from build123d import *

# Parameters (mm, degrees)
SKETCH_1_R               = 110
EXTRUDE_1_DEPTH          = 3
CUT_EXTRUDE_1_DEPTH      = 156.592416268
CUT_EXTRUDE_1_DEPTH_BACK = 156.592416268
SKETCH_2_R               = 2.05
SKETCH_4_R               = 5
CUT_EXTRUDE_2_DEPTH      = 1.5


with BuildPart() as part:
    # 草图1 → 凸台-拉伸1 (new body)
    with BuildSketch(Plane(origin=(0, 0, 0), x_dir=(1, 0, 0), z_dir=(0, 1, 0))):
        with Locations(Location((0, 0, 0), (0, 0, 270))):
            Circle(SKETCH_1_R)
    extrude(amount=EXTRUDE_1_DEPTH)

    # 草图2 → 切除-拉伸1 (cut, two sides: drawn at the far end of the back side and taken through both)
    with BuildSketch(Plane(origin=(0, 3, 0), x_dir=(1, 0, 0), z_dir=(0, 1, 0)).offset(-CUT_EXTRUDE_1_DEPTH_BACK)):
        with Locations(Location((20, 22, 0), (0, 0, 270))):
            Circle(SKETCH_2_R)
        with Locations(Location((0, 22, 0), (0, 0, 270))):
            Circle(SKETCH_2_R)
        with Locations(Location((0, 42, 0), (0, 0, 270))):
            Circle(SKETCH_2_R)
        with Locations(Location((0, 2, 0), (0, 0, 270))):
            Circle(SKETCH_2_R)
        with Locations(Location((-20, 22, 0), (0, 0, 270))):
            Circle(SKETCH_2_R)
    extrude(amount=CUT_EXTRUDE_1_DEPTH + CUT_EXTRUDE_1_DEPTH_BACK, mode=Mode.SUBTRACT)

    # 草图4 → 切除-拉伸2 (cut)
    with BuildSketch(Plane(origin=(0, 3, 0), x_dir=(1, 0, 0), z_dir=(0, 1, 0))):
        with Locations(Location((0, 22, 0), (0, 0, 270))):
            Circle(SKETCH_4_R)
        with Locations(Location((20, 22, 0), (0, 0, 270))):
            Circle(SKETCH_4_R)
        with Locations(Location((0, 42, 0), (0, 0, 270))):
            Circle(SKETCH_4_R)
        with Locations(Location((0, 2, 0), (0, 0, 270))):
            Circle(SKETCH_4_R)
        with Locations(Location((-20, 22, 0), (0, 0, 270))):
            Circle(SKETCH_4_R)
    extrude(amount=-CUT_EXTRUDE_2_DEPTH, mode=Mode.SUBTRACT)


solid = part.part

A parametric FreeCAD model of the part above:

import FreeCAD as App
import Part
import Sketcher

V = App.Vector
Q = App.Units.Quantity

doc = App.newDocument("Part")
body = doc.addObject("PartDesign::Body", "Body")

# Sketch on XZ plane
sketch1 = body.newObject("Sketcher::SketchObject", "Sketch")
sketch1.AttachmentSupport = (doc.getObject("XZ_Plane"), [""])
sketch1.MapMode = "FlatFace"
sketch1.addGeometry(Part.Circle(V(0, 0, 0), V(0, 0, 1), 110), False)
sketch1.addConstraint([
    Sketcher.Constraint("Coincident", 0, 3, -1, 1),
    Sketcher.Constraint("Diameter", 0, Q("220 mm")),
])
pad1 = body.newObject("PartDesign::Pad", "Pad")
pad1.Profile = sketch1
pad1.Length = 3
pad1.Reversed = True

# Sketch on XZ plane
sketch2 = body.newObject("Sketcher::SketchObject", "Sketch001")
sketch2.AttachmentSupport = (doc.getObject("XZ_Plane"), [""])
sketch2.MapMode = "FlatFace"
sketch2.AttachmentOffset = App.Placement(V(0, 0, -3), App.Rotation())
sketch2.addGeometry([
    Part.Circle(V(20, -22, 0), V(0, 0, 1), 2),  # 0
    Part.Circle(V(0, -22, 0), V(0, 0, 1), 2),  # 1
    Part.Circle(V(0, -42, 0), V(0, 0, 1), 2),  # 2
    Part.Circle(V(0, -2, 0), V(0, 0, 1), 2),  # 3
    Part.Circle(V(-20, -22, 0), V(0, 0, 1), 2),  # 4
], False)
sketch2.addConstraint([
    Sketcher.Constraint("Equal", 0, 1),
    Sketcher.Constraint("Equal", 1, 2),
    Sketcher.Constraint("Equal", 2, 3),
    Sketcher.Constraint("Equal", 3, 4),
    Sketcher.Constraint("Symmetric", 0, 3, 4, 3, -2),
    Sketcher.Constraint("PointOnObject", 1, 3, -2),
    Sketcher.Constraint("PointOnObject", 2, 3, -2),
    Sketcher.Constraint("PointOnObject", 3, 3, -2),
    Sketcher.Constraint("Horizontal", 0, 3, 1, 3),
    Sketcher.Constraint("Diameter", 0, Q("4.1 mm")),
    Sketcher.Constraint("DistanceX", -1, 1, 0, 3, Q("20 mm")),
    Sketcher.Constraint("DistanceY", 0, 3, -1, 1, Q("22 mm")),
    Sketcher.Constraint("DistanceY", 2, 3, -1, 1, Q("42 mm")),
    Sketcher.Constraint("DistanceY", 3, 3, -1, 1, Q("2 mm")),
])
pocket1 = body.newObject("PartDesign::Pocket", "Pocket")
pocket1.Profile = sketch2
pocket1.Type = "ThroughAll"
pocket1.Midplane = True

# Sketch on XZ plane
sketch3 = body.newObject("Sketcher::SketchObject", "Sketch002")
sketch3.AttachmentSupport = (doc.getObject("XZ_Plane"), [""])
sketch3.MapMode = "FlatFace"
sketch3.AttachmentOffset = App.Placement(V(0, 0, -3), App.Rotation())
sketch3.addGeometry([
    Part.Circle(V(0, -22, 0), V(0, 0, 1), 5),  # 0
    Part.Circle(V(20, -22, 0), V(0, 0, 1), 5),  # 1
    Part.Circle(V(0, -42, 0), V(0, 0, 1), 5),  # 2
    Part.Circle(V(0, -2, 0), V(0, 0, 1), 5),  # 3
    Part.Circle(V(-20, -22, 0), V(0, 0, 1), 5),  # 4
], False)
sketch3.addConstraint([
    Sketcher.Constraint("Equal", 0, 1),
    Sketcher.Constraint("Equal", 1, 2),
    Sketcher.Constraint("Equal", 2, 3),
    Sketcher.Constraint("Equal", 3, 4),
    Sketcher.Constraint("Symmetric", 1, 3, 4, 3, -2),
    Sketcher.Constraint("PointOnObject", 0, 3, -2),
    Sketcher.Constraint("PointOnObject", 2, 3, -2),
    Sketcher.Constraint("PointOnObject", 3, 3, -2),
    Sketcher.Constraint("Horizontal", 0, 3, 1, 3),
    Sketcher.Constraint("Diameter", 0, Q("10 mm")),
    Sketcher.Constraint("DistanceY", 0, 3, -1, 1, Q("22 mm")),
    Sketcher.Constraint("DistanceX", -1, 1, 1, 3, Q("20 mm")),
    Sketcher.Constraint("DistanceY", 2, 3, -1, 1, Q("42 mm")),
    Sketcher.Constraint("DistanceY", 3, 3, -1, 1, Q("2 mm")),
])
pocket2 = body.newObject("PartDesign::Pocket", "Pocket001")
pocket2.Profile = sketch3
pocket2.Length = 1.5
pocket2.Reversed = True

doc.recompute()
